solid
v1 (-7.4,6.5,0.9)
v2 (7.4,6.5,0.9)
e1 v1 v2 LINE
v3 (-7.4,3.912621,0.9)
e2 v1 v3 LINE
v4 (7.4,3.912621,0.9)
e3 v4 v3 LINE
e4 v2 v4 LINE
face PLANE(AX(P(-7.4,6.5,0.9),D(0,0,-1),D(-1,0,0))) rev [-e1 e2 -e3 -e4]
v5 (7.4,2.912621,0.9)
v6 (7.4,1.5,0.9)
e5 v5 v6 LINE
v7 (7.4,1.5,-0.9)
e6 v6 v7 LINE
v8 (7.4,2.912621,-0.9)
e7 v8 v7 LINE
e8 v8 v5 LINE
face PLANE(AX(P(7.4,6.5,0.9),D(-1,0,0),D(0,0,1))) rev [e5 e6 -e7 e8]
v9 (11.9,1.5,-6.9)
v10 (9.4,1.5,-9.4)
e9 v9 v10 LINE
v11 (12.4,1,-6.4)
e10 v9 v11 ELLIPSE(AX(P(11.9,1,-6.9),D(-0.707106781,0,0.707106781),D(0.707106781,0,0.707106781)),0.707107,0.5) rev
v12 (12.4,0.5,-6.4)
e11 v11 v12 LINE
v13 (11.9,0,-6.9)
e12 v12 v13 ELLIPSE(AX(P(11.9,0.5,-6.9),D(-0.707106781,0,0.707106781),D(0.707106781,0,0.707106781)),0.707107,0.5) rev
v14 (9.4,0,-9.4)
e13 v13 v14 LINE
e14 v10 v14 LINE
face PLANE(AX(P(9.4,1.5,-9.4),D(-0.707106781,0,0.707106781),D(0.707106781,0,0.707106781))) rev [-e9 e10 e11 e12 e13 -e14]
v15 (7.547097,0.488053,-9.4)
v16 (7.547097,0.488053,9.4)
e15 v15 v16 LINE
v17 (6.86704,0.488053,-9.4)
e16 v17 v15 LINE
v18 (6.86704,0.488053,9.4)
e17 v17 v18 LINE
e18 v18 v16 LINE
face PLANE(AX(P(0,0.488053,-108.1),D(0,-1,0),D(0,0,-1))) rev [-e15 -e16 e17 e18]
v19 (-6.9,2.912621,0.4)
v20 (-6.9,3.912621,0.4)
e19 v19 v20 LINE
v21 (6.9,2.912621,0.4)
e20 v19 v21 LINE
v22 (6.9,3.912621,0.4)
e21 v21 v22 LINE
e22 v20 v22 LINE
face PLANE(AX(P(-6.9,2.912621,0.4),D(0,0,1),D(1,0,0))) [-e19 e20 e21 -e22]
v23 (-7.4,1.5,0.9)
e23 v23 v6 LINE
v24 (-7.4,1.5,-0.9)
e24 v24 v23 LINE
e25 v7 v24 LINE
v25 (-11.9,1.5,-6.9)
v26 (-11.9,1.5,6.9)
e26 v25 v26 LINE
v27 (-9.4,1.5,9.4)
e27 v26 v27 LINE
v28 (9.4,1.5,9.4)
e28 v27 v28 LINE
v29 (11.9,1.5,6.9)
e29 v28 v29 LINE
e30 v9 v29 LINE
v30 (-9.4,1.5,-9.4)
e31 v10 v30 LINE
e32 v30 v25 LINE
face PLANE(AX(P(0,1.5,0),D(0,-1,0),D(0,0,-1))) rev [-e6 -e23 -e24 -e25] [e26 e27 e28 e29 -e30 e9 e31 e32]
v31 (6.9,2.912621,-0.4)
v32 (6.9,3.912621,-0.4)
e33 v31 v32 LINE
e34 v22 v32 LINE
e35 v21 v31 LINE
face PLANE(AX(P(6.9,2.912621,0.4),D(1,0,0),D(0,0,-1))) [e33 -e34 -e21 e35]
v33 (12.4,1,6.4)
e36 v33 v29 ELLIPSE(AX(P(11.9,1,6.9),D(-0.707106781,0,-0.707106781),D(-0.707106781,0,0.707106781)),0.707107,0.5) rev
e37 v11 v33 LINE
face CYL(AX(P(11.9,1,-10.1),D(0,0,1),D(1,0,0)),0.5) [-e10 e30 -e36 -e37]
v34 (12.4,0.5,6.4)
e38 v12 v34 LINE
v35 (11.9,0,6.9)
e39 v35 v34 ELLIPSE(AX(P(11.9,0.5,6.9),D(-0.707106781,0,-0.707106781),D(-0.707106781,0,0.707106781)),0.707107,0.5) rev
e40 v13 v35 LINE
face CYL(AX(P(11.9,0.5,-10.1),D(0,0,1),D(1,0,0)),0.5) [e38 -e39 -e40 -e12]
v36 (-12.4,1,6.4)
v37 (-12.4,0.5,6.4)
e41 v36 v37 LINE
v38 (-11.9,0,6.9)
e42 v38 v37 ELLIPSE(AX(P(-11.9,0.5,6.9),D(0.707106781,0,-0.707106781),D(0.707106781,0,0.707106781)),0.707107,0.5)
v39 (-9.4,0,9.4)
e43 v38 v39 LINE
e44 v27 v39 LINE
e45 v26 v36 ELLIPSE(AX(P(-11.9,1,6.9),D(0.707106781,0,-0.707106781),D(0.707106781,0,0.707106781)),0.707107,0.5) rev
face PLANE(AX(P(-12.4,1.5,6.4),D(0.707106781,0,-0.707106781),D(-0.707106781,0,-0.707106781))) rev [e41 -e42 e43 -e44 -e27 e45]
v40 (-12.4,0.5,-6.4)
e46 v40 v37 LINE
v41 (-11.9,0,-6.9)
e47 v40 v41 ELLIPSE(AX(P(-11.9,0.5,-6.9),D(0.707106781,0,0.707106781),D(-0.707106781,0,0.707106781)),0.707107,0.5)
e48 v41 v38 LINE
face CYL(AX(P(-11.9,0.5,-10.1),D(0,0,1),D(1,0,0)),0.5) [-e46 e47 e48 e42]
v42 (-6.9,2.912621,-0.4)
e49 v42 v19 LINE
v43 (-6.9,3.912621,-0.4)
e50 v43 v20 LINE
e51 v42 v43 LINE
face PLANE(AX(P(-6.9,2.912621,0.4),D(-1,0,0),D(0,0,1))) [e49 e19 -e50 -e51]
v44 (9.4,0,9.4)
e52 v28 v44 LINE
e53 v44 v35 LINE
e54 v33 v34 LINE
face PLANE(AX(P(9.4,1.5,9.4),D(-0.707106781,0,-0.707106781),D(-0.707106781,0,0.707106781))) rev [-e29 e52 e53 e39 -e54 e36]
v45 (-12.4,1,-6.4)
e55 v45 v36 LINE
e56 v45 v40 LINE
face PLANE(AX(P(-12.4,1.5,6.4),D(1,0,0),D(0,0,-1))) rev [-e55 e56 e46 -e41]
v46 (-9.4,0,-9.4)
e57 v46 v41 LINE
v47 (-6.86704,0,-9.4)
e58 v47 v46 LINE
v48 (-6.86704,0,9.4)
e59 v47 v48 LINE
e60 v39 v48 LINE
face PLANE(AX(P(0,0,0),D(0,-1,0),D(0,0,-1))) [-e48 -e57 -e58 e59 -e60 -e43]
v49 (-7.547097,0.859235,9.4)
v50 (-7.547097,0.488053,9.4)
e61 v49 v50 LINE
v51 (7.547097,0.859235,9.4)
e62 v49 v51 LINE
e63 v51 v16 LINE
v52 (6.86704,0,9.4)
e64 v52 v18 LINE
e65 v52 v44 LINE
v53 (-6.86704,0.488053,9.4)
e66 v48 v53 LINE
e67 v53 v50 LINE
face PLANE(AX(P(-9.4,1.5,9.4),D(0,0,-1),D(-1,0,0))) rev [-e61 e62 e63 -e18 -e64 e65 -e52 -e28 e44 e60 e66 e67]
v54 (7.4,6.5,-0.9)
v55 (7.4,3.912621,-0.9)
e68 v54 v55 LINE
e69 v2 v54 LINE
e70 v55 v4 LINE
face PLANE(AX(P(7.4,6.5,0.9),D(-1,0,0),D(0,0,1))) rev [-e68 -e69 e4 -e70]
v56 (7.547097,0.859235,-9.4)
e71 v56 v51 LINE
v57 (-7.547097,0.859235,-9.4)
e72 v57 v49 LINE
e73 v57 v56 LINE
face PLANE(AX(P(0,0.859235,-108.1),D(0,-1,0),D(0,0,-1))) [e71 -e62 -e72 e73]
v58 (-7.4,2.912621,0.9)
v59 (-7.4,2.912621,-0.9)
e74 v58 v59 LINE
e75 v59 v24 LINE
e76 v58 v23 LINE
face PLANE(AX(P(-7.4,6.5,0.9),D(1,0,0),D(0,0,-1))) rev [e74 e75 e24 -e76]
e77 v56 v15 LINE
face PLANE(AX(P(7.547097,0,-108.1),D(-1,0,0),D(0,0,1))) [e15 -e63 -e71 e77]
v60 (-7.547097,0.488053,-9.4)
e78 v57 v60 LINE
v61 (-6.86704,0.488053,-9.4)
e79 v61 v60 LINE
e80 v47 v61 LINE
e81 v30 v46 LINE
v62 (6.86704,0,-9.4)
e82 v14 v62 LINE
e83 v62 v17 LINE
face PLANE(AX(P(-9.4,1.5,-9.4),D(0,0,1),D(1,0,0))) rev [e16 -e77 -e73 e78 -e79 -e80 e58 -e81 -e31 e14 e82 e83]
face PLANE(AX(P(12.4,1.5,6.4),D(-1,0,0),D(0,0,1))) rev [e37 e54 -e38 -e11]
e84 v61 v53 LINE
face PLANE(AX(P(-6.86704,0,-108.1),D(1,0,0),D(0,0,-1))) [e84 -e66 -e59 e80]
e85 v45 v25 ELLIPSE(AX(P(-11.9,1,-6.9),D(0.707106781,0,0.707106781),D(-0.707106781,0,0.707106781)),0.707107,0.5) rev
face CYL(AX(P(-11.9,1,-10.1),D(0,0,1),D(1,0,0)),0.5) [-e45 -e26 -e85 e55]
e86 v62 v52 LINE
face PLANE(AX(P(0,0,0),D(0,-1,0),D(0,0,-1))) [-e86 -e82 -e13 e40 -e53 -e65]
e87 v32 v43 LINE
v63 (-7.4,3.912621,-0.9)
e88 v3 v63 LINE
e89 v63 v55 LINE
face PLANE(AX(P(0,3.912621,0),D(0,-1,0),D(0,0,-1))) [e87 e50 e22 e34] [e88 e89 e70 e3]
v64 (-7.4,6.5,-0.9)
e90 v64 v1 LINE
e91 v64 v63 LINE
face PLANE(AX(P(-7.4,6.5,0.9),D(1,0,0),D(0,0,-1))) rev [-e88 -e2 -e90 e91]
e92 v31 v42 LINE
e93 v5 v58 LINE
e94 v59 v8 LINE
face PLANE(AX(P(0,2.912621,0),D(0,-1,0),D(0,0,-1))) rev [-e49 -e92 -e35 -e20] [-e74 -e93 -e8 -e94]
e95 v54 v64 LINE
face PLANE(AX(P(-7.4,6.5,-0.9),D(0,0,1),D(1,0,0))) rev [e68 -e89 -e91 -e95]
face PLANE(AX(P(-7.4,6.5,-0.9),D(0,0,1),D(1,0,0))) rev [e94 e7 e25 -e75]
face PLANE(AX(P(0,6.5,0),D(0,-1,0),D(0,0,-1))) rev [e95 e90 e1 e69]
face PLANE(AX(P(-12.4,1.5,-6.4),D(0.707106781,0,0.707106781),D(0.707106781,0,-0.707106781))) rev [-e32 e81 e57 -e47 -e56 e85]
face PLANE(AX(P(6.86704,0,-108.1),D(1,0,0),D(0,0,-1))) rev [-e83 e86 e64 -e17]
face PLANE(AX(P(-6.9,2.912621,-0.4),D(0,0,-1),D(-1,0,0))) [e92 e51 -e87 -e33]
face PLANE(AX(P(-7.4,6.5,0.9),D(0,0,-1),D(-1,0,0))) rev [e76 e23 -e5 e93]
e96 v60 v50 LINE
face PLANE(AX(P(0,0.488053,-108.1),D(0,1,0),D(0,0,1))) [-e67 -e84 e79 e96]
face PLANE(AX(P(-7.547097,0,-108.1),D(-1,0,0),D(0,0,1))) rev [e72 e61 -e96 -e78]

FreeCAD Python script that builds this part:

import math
import FreeCAD as App
import Part
import Sketcher
from FreeCAD import Vector
Q = App.Units.Quantity

doc = App.newDocument("Part")
body = doc.addObject("PartDesign::Body", "Body")

sketch1 = body.newObject("Sketcher::SketchObject", "Sketch")
sketch1.AttachmentSupport = (doc.getObject("XZ_Plane"), [""])
sketch1.MapMode = "FlatFace"
sketch1.addGeometry([
    Part.LineSegment(Vector(-9.4, -9.4, 0), Vector(-12.4, -6.4, 0)),
    Part.LineSegment(Vector(-12.4, -6.4, 0), Vector(-12.4, 6.4, 0)),
    Part.LineSegment(Vector(-12.4, 6.4, 0), Vector(-9.4, 9.4, 0)),
    Part.LineSegment(Vector(-9.4, 9.4, 0), Vector(9.4, 9.4, 0)),
    Part.LineSegment(Vector(9.4, 9.4, 0), Vector(12.4, 6.4, 0)),
    Part.LineSegment(Vector(12.4, 6.4, 0), Vector(12.4, -6.4, 0)),
    Part.LineSegment(Vector(12.4, -6.4, 0), Vector(9.4, -9.4, 0)),
    Part.LineSegment(Vector(9.4, -9.4, 0), Vector(-9.4, -9.4, 0)),
], False)
sketch1.addConstraint([
    Sketcher.Constraint("Coincident", 0, 2, 1, 1),
    Sketcher.Constraint("Coincident", 1, 2, 2, 1),
    Sketcher.Constraint("Coincident", 2, 2, 3, 1),
    Sketcher.Constraint("Coincident", 3, 2, 4, 1),
    Sketcher.Constraint("Coincident", 4, 2, 5, 1),
    Sketcher.Constraint("Coincident", 5, 2, 6, 1),
    Sketcher.Constraint("Coincident", 6, 2, 7, 1),
    Sketcher.Constraint("Coincident", 7, 2, 0, 1),
    Sketcher.Constraint("Vertical", 1),
    Sketcher.Constraint("Horizontal", 3),
    Sketcher.Constraint("Vertical", 5),
    Sketcher.Constraint("Horizontal", 7),
    Sketcher.Constraint("Symmetric", 0, 2, 4, 2, -1, 1),
    Sketcher.Constraint("Symmetric", 2, 2, 6, 2, -1, 1),
    Sketcher.Constraint("Perpendicular", 0, 2),
    Sketcher.Constraint("Perpendicular", 2, 4),
    Sketcher.Constraint("Perpendicular", 4, 6),
    Sketcher.Constraint("Horizontal", 1, 2, 4, 2),
    Sketcher.Constraint("Vertical", 3, 2, 6, 2),
    Sketcher.Constraint("DistanceX", 3, 1, 3, 2, Q("18.8 mm")),
    Sketcher.Constraint("DistanceY", 1, 1, 1, 2, Q("12.8 mm")),
    Sketcher.Constraint("DistanceX", 1, 2, 2, 2, Q("3 mm")),
])
pad1 = body.newObject("PartDesign::Pad", "Pad")
pad1.Profile = sketch1
pad1.Length = 1.5
pad1.Reversed = True

sketch2 = body.newObject("Sketcher::SketchObject", "Sketch001")
sketch2.AttachmentSupport = (doc.getObject("XZ_Plane"), [""])
sketch2.MapMode = "FlatFace"
sketch2.AttachmentOffset = App.Placement(Vector(0, 0, -1.5), App.Rotation())
sketch2.addGeometry([
    Part.LineSegment(Vector(-7.4, -0.9, 0), Vector(-7.4, 0.9, 0)),
    Part.LineSegment(Vector(-7.4, 0.9, 0), Vector(7.4, 0.9, 0)),
    Part.LineSegment(Vector(7.4, 0.9, 0), Vector(7.4, -0.9, 0)),
    Part.LineSegment(Vector(7.4, -0.9, 0), Vector(-7.4, -0.9, 0)),
], False)
sketch2.addConstraint([
    Sketcher.Constraint("Coincident", 0, 2, 1, 1),
    Sketcher.Constraint("Coincident", 1, 2, 2, 1),
    Sketcher.Constraint("Coincident", 2, 2, 3, 1),
    Sketcher.Constraint("Coincident", 3, 2, 0, 1),
    Sketcher.Constraint("Vertical", 0),
    Sketcher.Constraint("Horizontal", 1),
    Sketcher.Constraint("Vertical", 2),
    Sketcher.Constraint("Horizontal", 3),
    Sketcher.Constraint("Symmetric", 0, 2, 2, 2, -1, 1),
    Sketcher.Constraint("DistanceX", 1, 1, 1, 2, Q("14.8 mm")),
    Sketcher.Constraint("DistanceY", 0, 1, 0, 2, Q("1.8 mm")),
])
pad2 = body.newObject("PartDesign::Pad", "Pad001")
pad2.Profile = sketch2
pad2.Length = 5
pad2.Reversed = True

sketch3 = body.newObject("Sketcher::SketchObject", "Sketch002")
sketch3.AttachmentSupport = (doc.getObject("XY_Plane"), [""])
sketch3.MapMode = "FlatFace"
sketch3.AttachmentOffset = App.Placement(Vector(0, 0, 0.9), App.Rotation())
sketch3.addGeometry([
    Part.LineSegment(Vector(-7.64, 3.54, 0), Vector(-7.64, 3.41, 0)),
    Part.LineSegment(Vector(-7.64, 3.41, 0), Vector(-7.16, 3.41, 0)),
    Part.LineSegment(Vector(-7.16, 3.41, 0), Vector(-7.16, 3.54, 0)),
    Part.LineSegment(Vector(-7.16, 3.54, 0), Vector(-7.64, 3.54, 0)),
], False)
sketch3.addConstraint([
    Sketcher.Constraint("Coincident", 0, 2, 1, 1),
    Sketcher.Constraint("Coincident", 1, 2, 2, 1),
    Sketcher.Constraint("Coincident", 2, 2, 3, 1),
    Sketcher.Constraint("Coincident", 3, 2, 0, 1),
    Sketcher.Constraint("Vertical", 0),
    Sketcher.Constraint("Horizontal", 1),
    Sketcher.Constraint("Vertical", 2),
    Sketcher.Constraint("Horizontal", 3),
    Sketcher.Constraint("DistanceX", 1, 1, 1, 2, Q("0.478908 mm")),
    Sketcher.Constraint("DistanceY", 0, 2, 0, 1, Q("0.127427 mm")),
    Sketcher.Constraint("DistanceY", -1, 1, 0, 2, Q("3.412621 mm")),
    Sketcher.Constraint("DistanceX", 0, 2, -1, 1, Q("7.639454 mm")),
])
pocket1 = body.newObject("PartDesign::Pocket", "Pocket")
pocket1.Profile = sketch3
pocket1.Length = 0.1

sketch4 = body.newObject("Sketcher::SketchObject", "Sketch003")
sketch4.AttachmentSupport = (doc.getObject("XZ_Plane"), [""])
sketch4.MapMode = "FlatFace"
sketch4.AttachmentOffset = App.Placement(Vector(0, 0, -3.412621), App.Rotation())
sketch4.addGeometry([
    Part.LineSegment(Vector(-7.8, -1.3, 0), Vector(-7.8, 1.3, 0)),
    Part.LineSegment(Vector(-7.8, 1.3, 0), Vector(7.8, 1.3, 0)),
    Part.LineSegment(Vector(7.8, 1.3, 0), Vector(7.8, -1.3, 0)),
    Part.LineSegment(Vector(7.8, -1.3, 0), Vector(-7.8, -1.3, 0)),
    Part.LineSegment(Vector(6.9, 0.4, 0), Vector(-6.9, 0.4, 0)),
    Part.LineSegment(Vector(-6.9, 0.4, 0), Vector(-6.9, -0.4, 0)),
    Part.LineSegment(Vector(-6.9, -0.4, 0), Vector(6.9, -0.4, 0)),
    Part.LineSegment(Vector(6.9, -0.4, 0), Vector(6.9, 0.4, 0)),
], False)
sketch4.addConstraint([
    Sketcher.Constraint("Coincident", 0, 2, 1, 1),
    Sketcher.Constraint("Coincident", 1, 2, 2, 1),
    Sketcher.Constraint("Coincident", 2, 2, 3, 1),
    Sketcher.Constraint("Coincident", 3, 2, 0, 1),
    Sketcher.Constraint("Coincident", 4, 2, 5, 1),
    Sketcher.Constraint("Coincident", 5, 2, 6, 1),
    Sketcher.Constraint("Coincident", 6, 2, 7, 1),
    Sketcher.Constraint("Coincident", 7, 2, 4, 1),
    Sketcher.Constraint("Vertical", 0),
    Sketcher.Constraint("Horizontal", 1),
    Sketcher.Constraint("Vertical", 2),
    Sketcher.Constraint("Horizontal", 3),
    Sketcher.Constraint("Horizontal", 4),
    Sketcher.Constraint("Vertical", 5),
    Sketcher.Constraint("Horizontal", 6),
    Sketcher.Constraint("Vertical", 7),
    Sketcher.Constraint("Symmetric", 0, 2, 2, 2, -1, 1),
    Sketcher.Constraint("Symmetric", 4, 2, 6, 2, -1, 1),
    Sketcher.Constraint("DistanceX", 4, 2, 4, 1, Q("13.8 mm")),
    Sketcher.Constraint("DistanceY", 5, 2, 5, 1, Q("0.8 mm")),
    Sketcher.Constraint("DistanceX", 1, 1, 1, 2, Q("15.629806 mm")),
    Sketcher.Constraint("DistanceY", 0, 1, 0, 2, Q("2.571593 mm")),
])
pocket2 = body.newObject("PartDesign::Pocket", "Pocket001")
pocket2.Profile = sketch4
pocket2.Type = "TwoLengths"
pocket2.Length = 0.5
pocket2.Length2 = 0.5

sketch5 = body.newObject("Sketcher::SketchObject", "Sketch004")
sketch5.AttachmentSupport = (doc.getObject("XY_Plane"), [""])
sketch5.MapMode = "FlatFace"
sketch5.AttachmentOffset = App.Placement(Vector(0, 0, 9.4), App.Rotation())
sketch5.addGeometry([
    Part.LineSegment(Vector(-6.87, 0.49, 0), Vector(-6.87, 0, 0)),
    Part.LineSegment(Vector(-6.87, 0, 0), Vector(6.87, 0, 0)),
    Part.LineSegment(Vector(6.87, 0, 0), Vector(6.87, 0.49, 0)),
    Part.LineSegment(Vector(6.87, 0.49, 0), Vector(7.55, 0.49, 0)),
    Part.LineSegment(Vector(7.55, 0.49, 0), Vector(7.55, 0.86, 0)),
    Part.LineSegment(Vector(7.55, 0.86, 0), Vector(-7.55, 0.86, 0)),
    Part.LineSegment(Vector(-7.55, 0.86, 0), Vector(-7.55, 0.49, 0)),
    Part.LineSegment(Vector(-7.55, 0.49, 0), Vector(-6.87, 0.49, 0)),
], False)
sketch5.addConstraint([
    Sketcher.Constraint("Coincident", 0, 2, 1, 1),
    Sketcher.Constraint("Coincident", 1, 2, 2, 1),
    Sketcher.Constraint("Coincident", 2, 2, 3, 1),
    Sketcher.Constraint("Coincident", 3, 2, 4, 1),
    Sketcher.Constraint("Coincident", 4, 2, 5, 1),
    Sketcher.Constraint("Coincident", 5, 2, 6, 1),
    Sketcher.Constraint("Coincident", 6, 2, 7, 1),
    Sketcher.Constraint("Coincident", 7, 2, 0, 1),
    Sketcher.Constraint("Vertical", 0),
    Sketcher.Constraint("Horizontal", 1),
    Sketcher.Constraint("Vertical", 2),
    Sketcher.Constraint("Horizontal", 3),
    Sketcher.Constraint("Vertical", 4),
    Sketcher.Constraint("Horizontal", 5),
    Sketcher.Constraint("Vertical", 6),
    Sketcher.Constraint("Horizontal", 7),
    Sketcher.Constraint("Symmetric", 0, 2, 1, 2, -1, 1),
    Sketcher.Constraint("Symmetric", 3, 2, 6, 2, -2),
    Sketcher.Constraint("DistanceX", 1, 1, 1, 2, Q("13.73408 mm")),
    Sketcher.Constraint("DistanceX", 3, 1, 3, 2, Q("0.680057 mm")),
    Sketcher.Constraint("DistanceY", 0, 2, 0, 1, Q("0.488053 mm")),
    Sketcher.Constraint("DistanceY", 4, 1, 4, 2, Q("0.371183 mm")),
])
pocket3 = body.newObject("PartDesign::Pocket", "Pocket002")
pocket3.Profile = sketch5
pocket3.Length = 117.5

sketch6 = body.newObject("Sketcher::SketchObject", "Sketch005")
sketch6.AttachmentSupport = (doc.getObject("XY_Plane"), [""])
sketch6.MapMode = "FlatFace"
sketch6.AttachmentOffset = App.Placement(Vector(0, 0, 9.4), App.Rotation())
sketch6.addGeometry([
    Part.ArcOfCircle(Part.Circle(Vector(-11.9, 0.5, 0), Vector(0, 0, 1), 0.5), math.radians(180), math.radians(270)),
    Part.LineSegment(Vector(-12.4, 0.5, 0), Vector(-12.4, 1, 0)),
    Part.ArcOfCircle(Part.Circle(Vector(-11.9, 1, 0), Vector(0, 0, 1), 0.5), math.radians(90), math.radians(180)),
    Part.LineSegment(Vector(-11.9, 1.5, 0), Vector(-13.66, 1.5, 0)),
    Part.LineSegment(Vector(-13.66, 1.5, 0), Vector(-13.66, -1.63, 0)),
    Part.LineSegment(Vector(-13.66, -1.63, 0), Vector(14.46, -1.63, 0)),
    Part.LineSegment(Vector(14.46, -1.63, 0), Vector(14.46, 1.5, 0)),
    Part.LineSegment(Vector(14.46, 1.5, 0), Vector(11.9, 1.5, 0)),
    Part.ArcOfCircle(Part.Circle(Vector(11.9, 1, 0), Vector(0, 0, 1), 0.5), math.radians(0), math.radians(90)),
    Part.LineSegment(Vector(12.4, 1, 0), Vector(12.4, 0.5, 0)),
    Part.ArcOfCircle(Part.Circle(Vector(11.9, 0.5, 0), Vector(0, 0, 1), 0.5), math.radians(-90), math.radians(0)),
    Part.LineSegment(Vector(11.9, 0, 0), Vector(-11.9, 0, 0)),
], False)
sketch6.addConstraint([
    Sketcher.Constraint("Tangent", 0, 1, 1, 1),
    Sketcher.Constraint("Tangent", 1, 2, 2, 2),
    Sketcher.Constraint("Tangent", 2, 1, 3, 1),
    Sketcher.Constraint("Coincident", 3, 2, 4, 1),
    Sketcher.Constraint("Coincident", 4, 2, 5, 1),
    Sketcher.Constraint("Coincident", 5, 2, 6, 1),
    Sketcher.Constraint("Coincident", 6, 2, 7, 1),
    Sketcher.Constraint("Tangent", 7, 2, 8, 2),
    Sketcher.Constraint("Tangent", 8, 1, 9, 1),
    Sketcher.Constraint("Tangent", 9, 2, 10, 2),
    Sketcher.Constraint("Tangent", 10, 1, 11, 1),
    Sketcher.Constraint("Tangent", 11, 2, 0, 2),
    Sketcher.Constraint("Vertical", 1),
    Sketcher.Constraint("Horizontal", 3),
    Sketcher.Constraint("Vertical", 4),
    Sketcher.Constraint("Horizontal", 5),
    Sketcher.Constraint("Vertical", 6),
    Sketcher.Constraint("Horizontal", 7),
    Sketcher.Constraint("Vertical", 9),
    Sketcher.Constraint("Horizontal", 11),
    Sketcher.Constraint("Equal", 0, 2),
    Sketcher.Constraint("Equal", 2, 8),
    Sketcher.Constraint("Equal", 8, 10),
    Sketcher.Constraint("Symmetric", 10, 1, 11, 2, -1, 1),
    Sketcher.Constraint("Horizontal", 2, 3, 8, 3),
    Sketcher.Constraint("Radius", 0, Q("0.5 mm")),
    Sketcher.Constraint("DistanceX", 11, 2, 11, 1, Q("23.8 mm")),
    Sketcher.Constraint("DistanceY", 1, 1, 1, 2, Q("0.5 mm")),
    Sketcher.Constraint("DistanceX", 7, 2, 7, 1, Q("2.556411 mm")),
    Sketcher.Constraint("DistanceY", 4, 2, 4, 1, Q("3.131892 mm")),
    Sketcher.Constraint("DistanceX", 3, 2, 3, 1, Q("1.759182 mm")),
])
pocket4 = body.newObject("PartDesign::Pocket", "Pocket003")
pocket4.Profile = sketch6
pocket4.Length = 19.5

doc.recompute()
